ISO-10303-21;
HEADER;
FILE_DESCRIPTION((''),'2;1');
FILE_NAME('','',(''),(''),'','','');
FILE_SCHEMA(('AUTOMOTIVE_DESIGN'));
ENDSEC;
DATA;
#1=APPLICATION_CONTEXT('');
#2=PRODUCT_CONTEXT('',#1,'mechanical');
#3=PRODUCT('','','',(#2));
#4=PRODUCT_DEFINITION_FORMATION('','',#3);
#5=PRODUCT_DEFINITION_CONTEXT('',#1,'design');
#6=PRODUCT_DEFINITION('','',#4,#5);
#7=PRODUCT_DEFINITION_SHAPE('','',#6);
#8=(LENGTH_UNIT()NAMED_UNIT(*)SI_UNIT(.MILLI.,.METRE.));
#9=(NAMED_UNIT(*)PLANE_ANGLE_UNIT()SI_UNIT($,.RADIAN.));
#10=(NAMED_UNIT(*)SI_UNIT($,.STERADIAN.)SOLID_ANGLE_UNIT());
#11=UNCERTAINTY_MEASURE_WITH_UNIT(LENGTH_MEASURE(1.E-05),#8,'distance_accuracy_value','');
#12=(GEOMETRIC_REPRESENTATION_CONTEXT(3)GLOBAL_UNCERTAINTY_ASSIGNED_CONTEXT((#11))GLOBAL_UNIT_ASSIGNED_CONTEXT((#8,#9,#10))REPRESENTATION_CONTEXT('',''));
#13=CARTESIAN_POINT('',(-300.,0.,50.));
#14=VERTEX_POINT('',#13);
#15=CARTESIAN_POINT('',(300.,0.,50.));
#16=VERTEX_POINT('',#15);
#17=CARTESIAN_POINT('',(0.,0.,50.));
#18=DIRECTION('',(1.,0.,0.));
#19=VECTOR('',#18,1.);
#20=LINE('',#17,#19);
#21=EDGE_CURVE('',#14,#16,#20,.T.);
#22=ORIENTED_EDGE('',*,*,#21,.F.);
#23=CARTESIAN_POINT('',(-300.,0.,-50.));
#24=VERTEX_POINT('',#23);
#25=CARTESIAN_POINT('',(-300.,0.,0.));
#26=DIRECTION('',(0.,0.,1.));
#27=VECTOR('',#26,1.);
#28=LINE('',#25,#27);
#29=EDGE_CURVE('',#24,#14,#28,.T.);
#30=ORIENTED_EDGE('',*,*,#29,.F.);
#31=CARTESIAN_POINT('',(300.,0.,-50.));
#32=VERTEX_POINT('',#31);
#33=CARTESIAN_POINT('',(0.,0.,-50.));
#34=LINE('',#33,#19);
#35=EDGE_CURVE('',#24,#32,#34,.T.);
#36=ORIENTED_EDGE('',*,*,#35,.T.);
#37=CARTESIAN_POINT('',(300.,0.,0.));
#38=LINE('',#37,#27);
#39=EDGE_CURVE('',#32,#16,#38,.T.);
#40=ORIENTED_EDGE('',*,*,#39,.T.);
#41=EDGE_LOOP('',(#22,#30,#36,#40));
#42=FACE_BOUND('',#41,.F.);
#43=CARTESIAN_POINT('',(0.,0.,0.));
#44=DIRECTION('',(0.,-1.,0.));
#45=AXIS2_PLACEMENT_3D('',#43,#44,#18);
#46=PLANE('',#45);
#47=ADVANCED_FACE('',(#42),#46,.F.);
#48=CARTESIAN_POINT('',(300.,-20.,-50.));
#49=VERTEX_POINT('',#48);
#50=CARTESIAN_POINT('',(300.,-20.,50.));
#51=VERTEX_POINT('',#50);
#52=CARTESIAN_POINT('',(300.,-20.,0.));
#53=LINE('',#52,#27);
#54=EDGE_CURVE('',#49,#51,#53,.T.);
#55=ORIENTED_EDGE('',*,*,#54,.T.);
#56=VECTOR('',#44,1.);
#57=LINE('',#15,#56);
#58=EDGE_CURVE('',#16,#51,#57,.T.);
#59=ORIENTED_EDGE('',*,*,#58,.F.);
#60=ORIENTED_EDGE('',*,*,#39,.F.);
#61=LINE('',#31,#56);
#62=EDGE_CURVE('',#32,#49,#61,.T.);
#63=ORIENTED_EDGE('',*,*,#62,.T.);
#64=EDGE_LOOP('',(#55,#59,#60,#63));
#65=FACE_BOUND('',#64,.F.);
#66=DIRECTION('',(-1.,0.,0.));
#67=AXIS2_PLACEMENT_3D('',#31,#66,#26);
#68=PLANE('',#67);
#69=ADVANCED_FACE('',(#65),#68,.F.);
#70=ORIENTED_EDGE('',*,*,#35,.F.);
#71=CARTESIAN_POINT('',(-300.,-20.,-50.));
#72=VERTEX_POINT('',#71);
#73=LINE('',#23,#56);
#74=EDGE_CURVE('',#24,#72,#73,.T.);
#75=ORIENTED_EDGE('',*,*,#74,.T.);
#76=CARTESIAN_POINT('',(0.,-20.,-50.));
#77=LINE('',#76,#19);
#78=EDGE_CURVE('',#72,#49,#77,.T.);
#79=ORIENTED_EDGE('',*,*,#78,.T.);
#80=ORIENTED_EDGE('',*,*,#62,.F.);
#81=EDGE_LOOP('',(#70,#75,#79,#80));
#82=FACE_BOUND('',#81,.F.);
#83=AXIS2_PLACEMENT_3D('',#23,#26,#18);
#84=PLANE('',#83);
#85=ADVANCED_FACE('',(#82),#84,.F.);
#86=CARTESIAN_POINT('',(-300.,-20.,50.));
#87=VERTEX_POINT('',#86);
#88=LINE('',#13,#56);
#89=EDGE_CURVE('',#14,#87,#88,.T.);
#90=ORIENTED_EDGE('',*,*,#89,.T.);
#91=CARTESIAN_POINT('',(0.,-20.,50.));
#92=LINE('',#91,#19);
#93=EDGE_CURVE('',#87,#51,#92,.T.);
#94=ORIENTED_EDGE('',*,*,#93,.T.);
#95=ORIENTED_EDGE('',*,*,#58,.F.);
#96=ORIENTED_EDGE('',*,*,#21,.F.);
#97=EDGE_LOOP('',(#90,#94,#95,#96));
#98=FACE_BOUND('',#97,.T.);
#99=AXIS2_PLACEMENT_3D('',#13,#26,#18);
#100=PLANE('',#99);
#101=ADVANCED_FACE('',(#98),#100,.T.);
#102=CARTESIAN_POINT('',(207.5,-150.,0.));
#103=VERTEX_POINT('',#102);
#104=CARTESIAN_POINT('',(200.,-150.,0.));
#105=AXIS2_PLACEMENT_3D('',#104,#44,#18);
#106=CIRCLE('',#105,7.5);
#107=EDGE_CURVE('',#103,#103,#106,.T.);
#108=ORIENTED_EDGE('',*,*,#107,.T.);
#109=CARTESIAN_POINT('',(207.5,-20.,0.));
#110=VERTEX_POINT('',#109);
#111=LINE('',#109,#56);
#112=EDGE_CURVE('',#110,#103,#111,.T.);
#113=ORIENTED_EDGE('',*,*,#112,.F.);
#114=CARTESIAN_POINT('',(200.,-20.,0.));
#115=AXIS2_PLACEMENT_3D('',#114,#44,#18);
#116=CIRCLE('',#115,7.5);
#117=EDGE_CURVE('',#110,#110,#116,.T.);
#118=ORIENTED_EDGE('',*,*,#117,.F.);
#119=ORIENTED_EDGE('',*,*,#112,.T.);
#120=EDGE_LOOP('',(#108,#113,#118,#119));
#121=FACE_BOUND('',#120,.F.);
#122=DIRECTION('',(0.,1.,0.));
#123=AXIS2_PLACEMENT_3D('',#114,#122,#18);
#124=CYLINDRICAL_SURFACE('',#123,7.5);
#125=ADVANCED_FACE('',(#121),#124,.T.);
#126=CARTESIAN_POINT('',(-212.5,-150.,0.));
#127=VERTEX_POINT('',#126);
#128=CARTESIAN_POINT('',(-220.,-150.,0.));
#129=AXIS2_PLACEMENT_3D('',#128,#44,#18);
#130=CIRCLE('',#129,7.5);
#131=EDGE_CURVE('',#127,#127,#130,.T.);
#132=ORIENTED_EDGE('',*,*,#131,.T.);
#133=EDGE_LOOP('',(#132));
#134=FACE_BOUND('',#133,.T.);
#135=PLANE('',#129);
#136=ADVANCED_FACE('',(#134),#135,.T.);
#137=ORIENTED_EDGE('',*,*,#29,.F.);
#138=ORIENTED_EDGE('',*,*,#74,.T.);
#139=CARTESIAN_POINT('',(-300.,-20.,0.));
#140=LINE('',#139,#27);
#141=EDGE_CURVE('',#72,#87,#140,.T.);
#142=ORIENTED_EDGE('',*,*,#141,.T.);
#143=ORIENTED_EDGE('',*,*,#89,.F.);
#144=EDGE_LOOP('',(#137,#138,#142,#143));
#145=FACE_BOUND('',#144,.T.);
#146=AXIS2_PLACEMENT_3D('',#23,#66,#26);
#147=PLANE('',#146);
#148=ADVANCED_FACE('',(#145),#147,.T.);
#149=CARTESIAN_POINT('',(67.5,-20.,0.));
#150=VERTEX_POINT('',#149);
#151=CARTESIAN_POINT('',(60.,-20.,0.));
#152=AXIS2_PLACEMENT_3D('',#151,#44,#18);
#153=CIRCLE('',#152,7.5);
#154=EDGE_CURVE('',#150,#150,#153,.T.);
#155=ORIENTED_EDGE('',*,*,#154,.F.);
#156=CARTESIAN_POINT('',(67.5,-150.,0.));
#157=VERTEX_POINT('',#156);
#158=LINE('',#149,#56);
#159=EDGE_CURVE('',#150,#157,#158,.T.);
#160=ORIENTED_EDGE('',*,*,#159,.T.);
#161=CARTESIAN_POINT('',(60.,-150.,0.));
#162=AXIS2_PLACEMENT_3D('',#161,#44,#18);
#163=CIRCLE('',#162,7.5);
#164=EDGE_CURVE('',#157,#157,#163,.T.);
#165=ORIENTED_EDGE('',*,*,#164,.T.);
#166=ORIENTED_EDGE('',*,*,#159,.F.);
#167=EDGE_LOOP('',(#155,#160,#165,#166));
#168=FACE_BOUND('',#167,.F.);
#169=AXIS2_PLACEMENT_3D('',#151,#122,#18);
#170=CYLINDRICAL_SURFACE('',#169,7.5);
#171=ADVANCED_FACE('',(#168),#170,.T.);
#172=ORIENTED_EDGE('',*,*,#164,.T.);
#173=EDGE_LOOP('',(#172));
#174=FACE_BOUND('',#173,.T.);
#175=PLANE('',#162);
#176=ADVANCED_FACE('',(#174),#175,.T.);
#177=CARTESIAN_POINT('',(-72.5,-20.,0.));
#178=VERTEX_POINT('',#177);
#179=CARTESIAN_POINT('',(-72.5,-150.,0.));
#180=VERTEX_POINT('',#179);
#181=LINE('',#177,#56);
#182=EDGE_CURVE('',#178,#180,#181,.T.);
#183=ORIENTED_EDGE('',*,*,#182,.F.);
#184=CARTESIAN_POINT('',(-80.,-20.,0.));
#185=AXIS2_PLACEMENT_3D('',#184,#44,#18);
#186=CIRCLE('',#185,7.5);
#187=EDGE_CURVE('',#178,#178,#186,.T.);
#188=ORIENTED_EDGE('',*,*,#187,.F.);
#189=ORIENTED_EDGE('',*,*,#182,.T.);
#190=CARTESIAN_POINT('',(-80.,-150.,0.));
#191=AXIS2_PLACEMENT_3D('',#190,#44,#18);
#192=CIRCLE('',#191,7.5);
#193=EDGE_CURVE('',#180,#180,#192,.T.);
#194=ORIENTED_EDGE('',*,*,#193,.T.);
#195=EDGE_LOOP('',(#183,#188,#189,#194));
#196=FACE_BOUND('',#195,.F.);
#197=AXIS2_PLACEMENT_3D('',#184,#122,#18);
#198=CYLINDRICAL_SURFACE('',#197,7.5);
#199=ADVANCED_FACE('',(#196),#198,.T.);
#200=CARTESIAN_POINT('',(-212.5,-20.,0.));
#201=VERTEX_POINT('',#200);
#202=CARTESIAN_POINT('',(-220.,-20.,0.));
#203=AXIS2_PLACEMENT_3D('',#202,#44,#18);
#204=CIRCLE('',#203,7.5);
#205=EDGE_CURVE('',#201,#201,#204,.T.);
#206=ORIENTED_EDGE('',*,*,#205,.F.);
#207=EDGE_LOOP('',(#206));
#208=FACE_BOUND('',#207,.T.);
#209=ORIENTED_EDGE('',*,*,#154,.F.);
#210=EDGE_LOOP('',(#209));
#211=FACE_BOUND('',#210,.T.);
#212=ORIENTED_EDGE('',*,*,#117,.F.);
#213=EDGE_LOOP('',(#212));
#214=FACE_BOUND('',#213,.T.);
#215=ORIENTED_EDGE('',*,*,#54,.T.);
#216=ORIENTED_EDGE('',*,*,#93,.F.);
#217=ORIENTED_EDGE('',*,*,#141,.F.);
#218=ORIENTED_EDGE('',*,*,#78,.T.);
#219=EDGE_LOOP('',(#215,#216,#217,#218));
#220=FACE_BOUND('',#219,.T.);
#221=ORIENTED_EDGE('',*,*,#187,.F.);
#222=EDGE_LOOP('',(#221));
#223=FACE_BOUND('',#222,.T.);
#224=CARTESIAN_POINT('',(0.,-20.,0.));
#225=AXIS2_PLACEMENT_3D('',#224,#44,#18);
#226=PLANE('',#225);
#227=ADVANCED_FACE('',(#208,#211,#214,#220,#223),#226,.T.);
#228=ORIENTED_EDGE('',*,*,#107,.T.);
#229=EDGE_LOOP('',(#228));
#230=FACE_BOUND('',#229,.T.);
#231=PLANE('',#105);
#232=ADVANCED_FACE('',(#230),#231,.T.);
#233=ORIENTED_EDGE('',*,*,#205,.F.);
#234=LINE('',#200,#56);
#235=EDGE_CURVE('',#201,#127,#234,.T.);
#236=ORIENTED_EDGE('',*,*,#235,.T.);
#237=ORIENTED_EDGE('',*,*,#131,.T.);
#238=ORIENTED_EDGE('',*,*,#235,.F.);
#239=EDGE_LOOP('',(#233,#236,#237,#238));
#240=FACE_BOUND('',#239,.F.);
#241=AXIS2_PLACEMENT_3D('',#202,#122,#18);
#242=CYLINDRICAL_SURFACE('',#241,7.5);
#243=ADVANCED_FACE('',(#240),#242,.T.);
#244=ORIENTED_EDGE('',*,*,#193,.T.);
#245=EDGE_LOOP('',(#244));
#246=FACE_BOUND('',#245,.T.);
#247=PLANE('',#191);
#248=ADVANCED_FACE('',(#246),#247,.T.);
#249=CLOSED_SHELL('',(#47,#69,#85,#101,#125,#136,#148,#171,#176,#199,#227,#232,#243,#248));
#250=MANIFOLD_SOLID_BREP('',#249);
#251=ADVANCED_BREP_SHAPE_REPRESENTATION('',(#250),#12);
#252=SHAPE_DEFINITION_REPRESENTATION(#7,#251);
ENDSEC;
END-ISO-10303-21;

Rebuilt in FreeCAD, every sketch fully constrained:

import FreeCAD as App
import Part
import Sketcher
from FreeCAD import Vector
Q = App.Units.Quantity


def add_polygon(sketch, points):
    """Adds a closed chain of lines whose ends are joined by coincident constraints."""
    first, n = sketch.GeometryCount, len(points)
    for a, b in zip(points, points[1:] + points[:1]):
        sketch.addGeometry(Part.LineSegment(App.Vector(*a, 0), App.Vector(*b, 0)), False)
    for i in range(n):
        sketch.addConstraint(Sketcher.Constraint("Coincident", first + i, 2, first + (i + 1) % n, 1))

doc = App.newDocument("Part")
params = doc.addObject("Spreadsheet::Sheet", "Params")
for row, (alias, value) in enumerate([
    ("sketch1_width", "600 mm"),
    ("sketch1_height", "100 mm"),
    ("pad1_length", "20 mm"),
    ("sketch2_diameter", "15 mm"),
    ("pad2_length", "130 mm"),
], start=1):
    params.set(f"A{row}", alias)
    params.set(f"B{row}", "=" + value)
    params.setAlias(f"B{row}", alias)

body = doc.addObject("PartDesign::Body", "Body")

# Sketch on XZ plane
sketch1 = body.newObject("Sketcher::SketchObject", "Sketch")
sketch1.AttachmentSupport = (doc.getObject("XZ_Plane"), [""])
sketch1.MapMode = "FlatFace"
add_polygon(sketch1, [(-300, 50), (-300, -50), (300, -50), (300, 50)])  # lines 0-3
sketch1.addConstraint([
    Sketcher.Constraint("Vertical", 0),
    Sketcher.Constraint("Horizontal", 1),
    Sketcher.Constraint("Vertical", 2),
    Sketcher.Constraint("Horizontal", 3),
    Sketcher.Constraint("Symmetric", 0, 2, 2, 2, -1, 1),
    Sketcher.Constraint("DistanceX", 1, 1, 1, 2, Q("600 mm")),
    Sketcher.Constraint("DistanceY", 0, 2, 0, 1, Q("100 mm")),
])
sketch1.setExpression("Constraints[9]", "Params.sketch1_width")
sketch1.setExpression("Constraints[10]", "Params.sketch1_height")
pad1 = body.newObject("PartDesign::Pad", "Pad")
pad1.Profile = sketch1
pad1.setExpression("Length", "Params.pad1_length")

# Sketch on XZ plane
sketch2 = body.newObject("Sketcher::SketchObject", "Sketch001")
sketch2.AttachmentSupport = (doc.getObject("XZ_Plane"), [""])
sketch2.MapMode = "FlatFace"
sketch2.AttachmentOffset = App.Placement(Vector(0, 0, 20), App.Rotation())
sketch2.addGeometry([
    Part.Circle(Vector(-220, 0, 0), Vector(0, 0, 1), 8),
    Part.Circle(Vector(-80, 0, 0), Vector(0, 0, 1), 8),
    Part.Circle(Vector(60, 0, 0), Vector(0, 0, 1), 8),
    Part.Circle(Vector(200, 0, 0), Vector(0, 0, 1), 8),
], False)
sketch2.addConstraint([
    Sketcher.Constraint("Equal", 0, 1),
    Sketcher.Constraint("Equal", 1, 2),
    Sketcher.Constraint("Equal", 2, 3),
    Sketcher.Constraint("PointOnObject", 0, 3, -1),
    Sketcher.Constraint("PointOnObject", 1, 3, -1),
    Sketcher.Constraint("PointOnObject", 2, 3, -1),
    Sketcher.Constraint("PointOnObject", 3, 3, -1),
    Sketcher.Constraint("Diameter", 0, Q("15 mm")),
    Sketcher.Constraint("DistanceX", 0, 3, -1, 1, Q("220 mm")),
    Sketcher.Constraint("DistanceX", 1, 3, -1, 1, Q("80 mm")),
    Sketcher.Constraint("DistanceX", -1, 1, 2, 3, Q("60 mm")),
    Sketcher.Constraint("DistanceX", -1, 1, 3, 3, Q("200 mm")),
])
sketch2.setExpression("Constraints[7]", "Params.sketch2_diameter")
pad2 = body.newObject("PartDesign::Pad", "Pad001")
pad2.Profile = sketch2
pad2.setExpression("Length", "Params.pad2_length")

doc.recompute()
